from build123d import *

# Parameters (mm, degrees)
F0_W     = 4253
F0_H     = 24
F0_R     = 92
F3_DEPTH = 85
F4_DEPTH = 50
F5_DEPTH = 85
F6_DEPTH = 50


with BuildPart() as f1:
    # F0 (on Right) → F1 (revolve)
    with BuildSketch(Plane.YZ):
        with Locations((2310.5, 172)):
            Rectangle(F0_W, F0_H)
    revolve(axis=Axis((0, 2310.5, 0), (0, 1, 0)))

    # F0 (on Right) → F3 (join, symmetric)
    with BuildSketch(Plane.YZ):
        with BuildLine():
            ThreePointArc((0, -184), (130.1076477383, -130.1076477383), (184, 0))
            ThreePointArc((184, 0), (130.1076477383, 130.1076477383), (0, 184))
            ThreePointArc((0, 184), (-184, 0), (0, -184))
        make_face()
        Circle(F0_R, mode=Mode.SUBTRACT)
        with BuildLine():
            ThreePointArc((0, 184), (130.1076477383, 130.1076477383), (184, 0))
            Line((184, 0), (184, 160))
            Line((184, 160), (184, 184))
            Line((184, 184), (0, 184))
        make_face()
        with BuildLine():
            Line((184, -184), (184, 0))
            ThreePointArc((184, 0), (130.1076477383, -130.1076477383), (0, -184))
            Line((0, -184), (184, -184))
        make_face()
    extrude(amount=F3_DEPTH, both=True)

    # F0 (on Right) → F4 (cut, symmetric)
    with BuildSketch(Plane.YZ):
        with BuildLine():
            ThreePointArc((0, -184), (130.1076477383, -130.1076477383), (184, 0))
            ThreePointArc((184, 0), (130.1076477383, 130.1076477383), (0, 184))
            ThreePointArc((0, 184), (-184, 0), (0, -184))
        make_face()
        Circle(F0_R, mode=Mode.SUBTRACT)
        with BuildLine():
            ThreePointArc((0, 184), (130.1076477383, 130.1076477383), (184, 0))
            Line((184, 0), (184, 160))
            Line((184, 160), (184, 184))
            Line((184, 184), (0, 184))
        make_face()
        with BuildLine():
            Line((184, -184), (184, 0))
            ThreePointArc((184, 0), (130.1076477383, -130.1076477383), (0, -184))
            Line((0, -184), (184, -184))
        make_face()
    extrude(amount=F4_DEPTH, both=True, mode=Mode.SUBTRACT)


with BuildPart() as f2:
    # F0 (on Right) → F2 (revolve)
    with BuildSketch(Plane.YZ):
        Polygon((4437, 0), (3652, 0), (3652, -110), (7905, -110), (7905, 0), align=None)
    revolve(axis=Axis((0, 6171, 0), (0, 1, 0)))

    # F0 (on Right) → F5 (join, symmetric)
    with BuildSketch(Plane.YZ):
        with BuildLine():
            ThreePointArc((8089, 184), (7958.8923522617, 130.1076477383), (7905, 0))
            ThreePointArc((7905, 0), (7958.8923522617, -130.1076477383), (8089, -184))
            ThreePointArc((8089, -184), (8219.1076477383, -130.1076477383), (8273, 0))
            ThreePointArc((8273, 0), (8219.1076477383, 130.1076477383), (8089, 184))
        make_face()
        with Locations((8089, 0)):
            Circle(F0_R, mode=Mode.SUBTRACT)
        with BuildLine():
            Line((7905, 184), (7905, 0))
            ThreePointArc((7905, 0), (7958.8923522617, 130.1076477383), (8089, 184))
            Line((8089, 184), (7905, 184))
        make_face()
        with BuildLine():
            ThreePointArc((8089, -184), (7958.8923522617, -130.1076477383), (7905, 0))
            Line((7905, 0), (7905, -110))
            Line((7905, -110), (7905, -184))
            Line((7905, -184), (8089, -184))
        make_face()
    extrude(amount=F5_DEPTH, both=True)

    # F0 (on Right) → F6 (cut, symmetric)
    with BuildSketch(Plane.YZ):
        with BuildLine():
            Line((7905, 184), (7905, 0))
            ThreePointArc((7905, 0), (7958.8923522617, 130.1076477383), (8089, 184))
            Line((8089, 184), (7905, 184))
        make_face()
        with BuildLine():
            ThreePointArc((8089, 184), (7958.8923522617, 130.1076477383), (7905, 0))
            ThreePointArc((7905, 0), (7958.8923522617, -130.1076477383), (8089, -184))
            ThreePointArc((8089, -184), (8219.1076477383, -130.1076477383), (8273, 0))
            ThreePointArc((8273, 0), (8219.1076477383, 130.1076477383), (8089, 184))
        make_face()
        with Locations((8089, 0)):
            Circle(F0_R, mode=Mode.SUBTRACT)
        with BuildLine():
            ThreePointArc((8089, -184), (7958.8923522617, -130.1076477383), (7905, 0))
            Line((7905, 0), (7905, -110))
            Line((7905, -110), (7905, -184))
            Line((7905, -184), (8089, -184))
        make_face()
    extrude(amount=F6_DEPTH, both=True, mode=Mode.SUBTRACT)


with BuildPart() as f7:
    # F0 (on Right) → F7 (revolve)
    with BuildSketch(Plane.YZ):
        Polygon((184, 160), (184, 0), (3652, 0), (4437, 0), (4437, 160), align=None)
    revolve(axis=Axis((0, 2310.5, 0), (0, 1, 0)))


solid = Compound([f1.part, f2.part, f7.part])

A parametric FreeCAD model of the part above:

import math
import FreeCAD as App
import Part
import Sketcher

V = App.Vector


def add_polygon(sketch, points):
    """Adds a closed chain of lines whose ends are joined by coincident constraints."""
    first, n = sketch.GeometryCount, len(points)
    for a, b in zip(points, points[1:] + points[:1]):
        sketch.addGeometry(Part.LineSegment(App.Vector(*a, 0), App.Vector(*b, 0)), False)
    for i in range(n):
        sketch.addConstraint(Sketcher.Constraint("Coincident", first + i, 2, first + (i + 1) % n, 1))

doc = App.newDocument("Part")
body = doc.addObject("PartDesign::Body", "Body")

# Sketch on YZ plane
sketch1 = body.newObject("Sketcher::SketchObject", "Sketch")
sketch1.AttachmentSupport = (doc.getObject("YZ_Plane"), [""])
sketch1.MapMode = "FlatFace"
add_polygon(sketch1, [(184, 184), (184, 160), (4437, 160), (4437, 184)])  # lines 0-3
sketch1.addConstraint(Sketcher.Constraint("Vertical", 0))
sketch1.addConstraint(Sketcher.Constraint("Horizontal", 1))
sketch1.addConstraint(Sketcher.Constraint("Vertical", 2))
sketch1.addConstraint(Sketcher.Constraint("Horizontal", 3))
sketch1.addConstraint(Sketcher.Constraint("DistanceX", 1, 1, 1, 2, 4253.0))
sketch1.addConstraint(Sketcher.Constraint("DistanceY", 0, 2, 0, 1, 24.0))
sketch1.addConstraint(Sketcher.Constraint("DistanceX", -1, 1, 0, 2, 184.0))
sketch1.addConstraint(Sketcher.Constraint("DistanceY", -1, 1, 0, 2, 160.0))
revolution = body.newObject("PartDesign::Revolution", "Revolution")
revolution.Profile = sketch1
revolution.ReferenceAxis = (sketch1, ["H_Axis"])
revolution.Angle = 360

# Sketch on YZ plane
sketch2 = body.newObject("Sketcher::SketchObject", "Sketch001")
sketch2.AttachmentSupport = (doc.getObject("YZ_Plane"), [""])
sketch2.MapMode = "FlatFace"
sketch2.addGeometry(Part.ArcOfCircle(Part.Circle(V(0, 0, 0), V(0, 0, 1), 184), math.radians(90), math.radians(270)), False)
sketch2.addGeometry(Part.LineSegment(V(0, -184, 0), V(184, -184, 0)), False)
sketch2.addGeometry(Part.LineSegment(V(184, -184, 0), V(184, 184, 0)), False)
sketch2.addGeometry(Part.LineSegment(V(184, 184, 0), V(0, 184, 0)), False)
sketch2.addGeometry(Part.Circle(V(0, 0, 0), V(0, 0, 1), 92), False)
sketch2.addConstraint(Sketcher.Constraint("Tangent", 0, 2, 1, 1))
sketch2.addConstraint(Sketcher.Constraint("Coincident", 1, 2, 2, 1))
sketch2.addConstraint(Sketcher.Constraint("Coincident", 2, 2, 3, 1))
sketch2.addConstraint(Sketcher.Constraint("Tangent", 3, 2, 0, 1))
sketch2.addConstraint(Sketcher.Constraint("Horizontal", 1))
sketch2.addConstraint(Sketcher.Constraint("Vertical", 2))
sketch2.addConstraint(Sketcher.Constraint("Horizontal", 3))
sketch2.addConstraint(Sketcher.Constraint("Coincident", 0, 3, -1, 1))
sketch2.addConstraint(Sketcher.Constraint("Coincident", 4, 3, -1, 1))
sketch2.addConstraint(Sketcher.Constraint("Diameter", 4, 184.0))
sketch2.addConstraint(Sketcher.Constraint("Radius", 0, 184.0))
sketch2.addConstraint(Sketcher.Constraint("DistanceX", 1, 1, 1, 2, 184.0))
pad1 = body.newObject("PartDesign::Pad", "Pad")
pad1.Profile = sketch2
pad1.Length = 170
pad1.Midplane = True

# Sketch on YZ plane
sketch3 = body.newObject("Sketcher::SketchObject", "Sketch002")
sketch3.AttachmentSupport = (doc.getObject("YZ_Plane"), [""])
sketch3.MapMode = "FlatFace"
sketch3.addGeometry(Part.ArcOfCircle(Part.Circle(V(0, 0, 0), V(0, 0, 1), 184), math.radians(90), math.radians(270)), False)
sketch3.addGeometry(Part.LineSegment(V(0, -184, 0), V(184, -184, 0)), False)
sketch3.addGeometry(Part.LineSegment(V(184, -184, 0), V(184, 184, 0)), False)
sketch3.addGeometry(Part.LineSegment(V(184, 184, 0), V(0, 184, 0)), False)
sketch3.addGeometry(Part.Circle(V(0, 0, 0), V(0, 0, 1), 92), False)
sketch3.addConstraint(Sketcher.Constraint("Tangent", 0, 2, 1, 1))
sketch3.addConstraint(Sketcher.Constraint("Coincident", 1, 2, 2, 1))
sketch3.addConstraint(Sketcher.Constraint("Coincident", 2, 2, 3, 1))
sketch3.addConstraint(Sketcher.Constraint("Tangent", 3, 2, 0, 1))
sketch3.addConstraint(Sketcher.Constraint("Horizontal", 1))
sketch3.addConstraint(Sketcher.Constraint("Vertical", 2))
sketch3.addConstraint(Sketcher.Constraint("Horizontal", 3))
sketch3.addConstraint(Sketcher.Constraint("Coincident", 0, 3, -1, 1))
sketch3.addConstraint(Sketcher.Constraint("Coincident", 4, 3, -1, 1))
sketch3.addConstraint(Sketcher.Constraint("Diameter", 4, 184.0))
sketch3.addConstraint(Sketcher.Constraint("Radius", 0, 184.0))
sketch3.addConstraint(Sketcher.Constraint("DistanceX", 1, 1, 1, 2, 184.0))
pocket1 = body.newObject("PartDesign::Pocket", "Pocket")
pocket1.Profile = sketch3
pocket1.Length = 100
pocket1.Midplane = True
body2 = doc.addObject("PartDesign::Body", "Body001")

# Sketch on YZ plane
sketch4 = body2.newObject("Sketcher::SketchObject", "Sketch003")
sketch4.AttachmentSupport = (doc.getObject("YZ_Plane001"), [""])
sketch4.MapMode = "FlatFace"
add_polygon(sketch4, [(3652, 0), (3652, -110), (7905, -110), (7905, 0)])  # lines 0-3
sketch4.addConstraint(Sketcher.Constraint("Vertical", 0))
sketch4.addConstraint(Sketcher.Constraint("Horizontal", 1))
sketch4.addConstraint(Sketcher.Constraint("Vertical", 2))
sketch4.addConstraint(Sketcher.Constraint("Horizontal", 3))
sketch4.addConstraint(Sketcher.Constraint("PointOnObject", 2, 2, -1))
sketch4.addConstraint(Sketcher.Constraint("DistanceX", 1, 1, 1, 2, 4253.0))
sketch4.addConstraint(Sketcher.Constraint("DistanceY", 0, 2, 0, 1, 110.0))
sketch4.addConstraint(Sketcher.Constraint("DistanceX", -1, 1, 0, 2, 3652.0))
revolution2 = body2.newObject("PartDesign::Revolution", "Revolution001")
revolution2.Profile = sketch4
revolution2.ReferenceAxis = (sketch4, ["H_Axis"])
revolution2.Angle = 360

# Sketch on YZ plane
sketch5 = body2.newObject("Sketcher::SketchObject", "Sketch004")
sketch5.AttachmentSupport = (doc.getObject("YZ_Plane001"), [""])
sketch5.MapMode = "FlatFace"
sketch5.addGeometry(Part.LineSegment(V(8089, 184, 0), V(7905, 184, 0)), False)
sketch5.addGeometry(Part.LineSegment(V(7905, 184, 0), V(7905, -184, 0)), False)
sketch5.addGeometry(Part.LineSegment(V(7905, -184, 0), V(8089, -184, 0)), False)
sketch5.addGeometry(Part.ArcOfCircle(Part.Circle(V(8089, 0, 0), V(0, 0, 1), 184), math.radians(-90), math.radians(90)), False)
sketch5.addGeometry(Part.Circle(V(8089, 0, 0), V(0, 0, 1), 92), False)
sketch5.addConstraint(Sketcher.Constraint("Coincident", 0, 2, 1, 1))
sketch5.addConstraint(Sketcher.Constraint("Coincident", 1, 2, 2, 1))
sketch5.addConstraint(Sketcher.Constraint("Tangent", 2, 2, 3, 1))
sketch5.addConstraint(Sketcher.Constraint("Tangent", 3, 2, 0, 1))
sketch5.addConstraint(Sketcher.Constraint("Horizontal", 0))
sketch5.addConstraint(Sketcher.Constraint("Vertical", 1))
sketch5.addConstraint(Sketcher.Constraint("Horizontal", 2))
sketch5.addConstraint(Sketcher.Constraint("Coincident", 4, 3, 3, 3))
sketch5.addConstraint(Sketcher.Constraint("PointOnObject", 3, 3, -1))
sketch5.addConstraint(Sketcher.Constraint("Diameter", 4, 184.0))
sketch5.addConstraint(Sketcher.Constraint("Radius", 3, 184.0))
sketch5.addConstraint(Sketcher.Constraint("DistanceX", 0, 2, 0, 1, 184.0))
sketch5.addConstraint(Sketcher.Constraint("DistanceX", -1, 1, 3, 3, 8089.0))
pad2 = body2.newObject("PartDesign::Pad", "Pad001")
pad2.Profile = sketch5
pad2.Length = 170
pad2.Midplane = True

# Sketch on YZ plane
sketch6 = body2.newObject("Sketcher::SketchObject", "Sketch005")
sketch6.AttachmentSupport = (doc.getObject("YZ_Plane001"), [""])
sketch6.MapMode = "FlatFace"
sketch6.addGeometry(Part.LineSegment(V(7905, 184, 0), V(7905, -184, 0)), False)
sketch6.addGeometry(Part.LineSegment(V(7905, -184, 0), V(8089, -184, 0)), False)
sketch6.addGeometry(Part.ArcOfCircle(Part.Circle(V(8089, 0, 0), V(0, 0, 1), 184), math.radians(-90), math.radians(90)), False)
sketch6.addGeometry(Part.LineSegment(V(8089, 184, 0), V(7905, 184, 0)), False)
sketch6.addGeometry(Part.Circle(V(8089, 0, 0), V(0, 0, 1), 92), False)
sketch6.addConstraint(Sketcher.Constraint("Coincident", 0, 2, 1, 1))
sketch6.addConstraint(Sketcher.Constraint("Tangent", 1, 2, 2, 1))
sketch6.addConstraint(Sketcher.Constraint("Tangent", 2, 2, 3, 1))
sketch6.addConstraint(Sketcher.Constraint("Coincident", 3, 2, 0, 1))
sketch6.addConstraint(Sketcher.Constraint("Vertical", 0))
sketch6.addConstraint(Sketcher.Constraint("Horizontal", 1))
sketch6.addConstraint(Sketcher.Constraint("Horizontal", 3))
sketch6.addConstraint(Sketcher.Constraint("Coincident", 4, 3, 2, 3))
sketch6.addConstraint(Sketcher.Constraint("PointOnObject", 2, 3, -1))
sketch6.addConstraint(Sketcher.Constraint("Diameter", 4, 184.0))
sketch6.addConstraint(Sketcher.Constraint("Radius", 2, 184.0))
sketch6.addConstraint(Sketcher.Constraint("DistanceX", 1, 1, 1, 2, 184.0))
sketch6.addConstraint(Sketcher.Constraint("DistanceX", -1, 1, 2, 3, 8089.0))
pocket2 = body2.newObject("PartDesign::Pocket", "Pocket001")
pocket2.Profile = sketch6
pocket2.Length = 100
pocket2.Midplane = True
body3 = doc.addObject("PartDesign::Body", "Body002")

# Sketch on YZ plane
sketch7 = body3.newObject("Sketcher::SketchObject", "Sketch006")
sketch7.AttachmentSupport = (doc.getObject("YZ_Plane002"), [""])
sketch7.MapMode = "FlatFace"
add_polygon(sketch7, [(184, 160), (184, 0), (4437, 0), (4437, 160)])  # lines 0-3
sketch7.addConstraint(Sketcher.Constraint("Vertical", 0))
sketch7.addConstraint(Sketcher.Constraint("Horizontal", 1))
sketch7.addConstraint(Sketcher.Constraint("Vertical", 2))
sketch7.addConstraint(Sketcher.Constraint("Horizontal", 3))
sketch7.addConstraint(Sketcher.Constraint("PointOnObject", 0, 2, -1))
sketch7.addConstraint(Sketcher.Constraint("DistanceX", 1, 1, 1, 2, 4253.0))
sketch7.addConstraint(Sketcher.Constraint("DistanceY", 0, 2, 0, 1, 160.0))
sketch7.addConstraint(Sketcher.Constraint("DistanceX", -1, 1, 0, 2, 184.0))
revolution3 = body3.newObject("PartDesign::Revolution", "Revolution002")
revolution3.Profile = sketch7
revolution3.ReferenceAxis = (sketch7, ["H_Axis"])
revolution3.Angle = 360

doc.recompute()
